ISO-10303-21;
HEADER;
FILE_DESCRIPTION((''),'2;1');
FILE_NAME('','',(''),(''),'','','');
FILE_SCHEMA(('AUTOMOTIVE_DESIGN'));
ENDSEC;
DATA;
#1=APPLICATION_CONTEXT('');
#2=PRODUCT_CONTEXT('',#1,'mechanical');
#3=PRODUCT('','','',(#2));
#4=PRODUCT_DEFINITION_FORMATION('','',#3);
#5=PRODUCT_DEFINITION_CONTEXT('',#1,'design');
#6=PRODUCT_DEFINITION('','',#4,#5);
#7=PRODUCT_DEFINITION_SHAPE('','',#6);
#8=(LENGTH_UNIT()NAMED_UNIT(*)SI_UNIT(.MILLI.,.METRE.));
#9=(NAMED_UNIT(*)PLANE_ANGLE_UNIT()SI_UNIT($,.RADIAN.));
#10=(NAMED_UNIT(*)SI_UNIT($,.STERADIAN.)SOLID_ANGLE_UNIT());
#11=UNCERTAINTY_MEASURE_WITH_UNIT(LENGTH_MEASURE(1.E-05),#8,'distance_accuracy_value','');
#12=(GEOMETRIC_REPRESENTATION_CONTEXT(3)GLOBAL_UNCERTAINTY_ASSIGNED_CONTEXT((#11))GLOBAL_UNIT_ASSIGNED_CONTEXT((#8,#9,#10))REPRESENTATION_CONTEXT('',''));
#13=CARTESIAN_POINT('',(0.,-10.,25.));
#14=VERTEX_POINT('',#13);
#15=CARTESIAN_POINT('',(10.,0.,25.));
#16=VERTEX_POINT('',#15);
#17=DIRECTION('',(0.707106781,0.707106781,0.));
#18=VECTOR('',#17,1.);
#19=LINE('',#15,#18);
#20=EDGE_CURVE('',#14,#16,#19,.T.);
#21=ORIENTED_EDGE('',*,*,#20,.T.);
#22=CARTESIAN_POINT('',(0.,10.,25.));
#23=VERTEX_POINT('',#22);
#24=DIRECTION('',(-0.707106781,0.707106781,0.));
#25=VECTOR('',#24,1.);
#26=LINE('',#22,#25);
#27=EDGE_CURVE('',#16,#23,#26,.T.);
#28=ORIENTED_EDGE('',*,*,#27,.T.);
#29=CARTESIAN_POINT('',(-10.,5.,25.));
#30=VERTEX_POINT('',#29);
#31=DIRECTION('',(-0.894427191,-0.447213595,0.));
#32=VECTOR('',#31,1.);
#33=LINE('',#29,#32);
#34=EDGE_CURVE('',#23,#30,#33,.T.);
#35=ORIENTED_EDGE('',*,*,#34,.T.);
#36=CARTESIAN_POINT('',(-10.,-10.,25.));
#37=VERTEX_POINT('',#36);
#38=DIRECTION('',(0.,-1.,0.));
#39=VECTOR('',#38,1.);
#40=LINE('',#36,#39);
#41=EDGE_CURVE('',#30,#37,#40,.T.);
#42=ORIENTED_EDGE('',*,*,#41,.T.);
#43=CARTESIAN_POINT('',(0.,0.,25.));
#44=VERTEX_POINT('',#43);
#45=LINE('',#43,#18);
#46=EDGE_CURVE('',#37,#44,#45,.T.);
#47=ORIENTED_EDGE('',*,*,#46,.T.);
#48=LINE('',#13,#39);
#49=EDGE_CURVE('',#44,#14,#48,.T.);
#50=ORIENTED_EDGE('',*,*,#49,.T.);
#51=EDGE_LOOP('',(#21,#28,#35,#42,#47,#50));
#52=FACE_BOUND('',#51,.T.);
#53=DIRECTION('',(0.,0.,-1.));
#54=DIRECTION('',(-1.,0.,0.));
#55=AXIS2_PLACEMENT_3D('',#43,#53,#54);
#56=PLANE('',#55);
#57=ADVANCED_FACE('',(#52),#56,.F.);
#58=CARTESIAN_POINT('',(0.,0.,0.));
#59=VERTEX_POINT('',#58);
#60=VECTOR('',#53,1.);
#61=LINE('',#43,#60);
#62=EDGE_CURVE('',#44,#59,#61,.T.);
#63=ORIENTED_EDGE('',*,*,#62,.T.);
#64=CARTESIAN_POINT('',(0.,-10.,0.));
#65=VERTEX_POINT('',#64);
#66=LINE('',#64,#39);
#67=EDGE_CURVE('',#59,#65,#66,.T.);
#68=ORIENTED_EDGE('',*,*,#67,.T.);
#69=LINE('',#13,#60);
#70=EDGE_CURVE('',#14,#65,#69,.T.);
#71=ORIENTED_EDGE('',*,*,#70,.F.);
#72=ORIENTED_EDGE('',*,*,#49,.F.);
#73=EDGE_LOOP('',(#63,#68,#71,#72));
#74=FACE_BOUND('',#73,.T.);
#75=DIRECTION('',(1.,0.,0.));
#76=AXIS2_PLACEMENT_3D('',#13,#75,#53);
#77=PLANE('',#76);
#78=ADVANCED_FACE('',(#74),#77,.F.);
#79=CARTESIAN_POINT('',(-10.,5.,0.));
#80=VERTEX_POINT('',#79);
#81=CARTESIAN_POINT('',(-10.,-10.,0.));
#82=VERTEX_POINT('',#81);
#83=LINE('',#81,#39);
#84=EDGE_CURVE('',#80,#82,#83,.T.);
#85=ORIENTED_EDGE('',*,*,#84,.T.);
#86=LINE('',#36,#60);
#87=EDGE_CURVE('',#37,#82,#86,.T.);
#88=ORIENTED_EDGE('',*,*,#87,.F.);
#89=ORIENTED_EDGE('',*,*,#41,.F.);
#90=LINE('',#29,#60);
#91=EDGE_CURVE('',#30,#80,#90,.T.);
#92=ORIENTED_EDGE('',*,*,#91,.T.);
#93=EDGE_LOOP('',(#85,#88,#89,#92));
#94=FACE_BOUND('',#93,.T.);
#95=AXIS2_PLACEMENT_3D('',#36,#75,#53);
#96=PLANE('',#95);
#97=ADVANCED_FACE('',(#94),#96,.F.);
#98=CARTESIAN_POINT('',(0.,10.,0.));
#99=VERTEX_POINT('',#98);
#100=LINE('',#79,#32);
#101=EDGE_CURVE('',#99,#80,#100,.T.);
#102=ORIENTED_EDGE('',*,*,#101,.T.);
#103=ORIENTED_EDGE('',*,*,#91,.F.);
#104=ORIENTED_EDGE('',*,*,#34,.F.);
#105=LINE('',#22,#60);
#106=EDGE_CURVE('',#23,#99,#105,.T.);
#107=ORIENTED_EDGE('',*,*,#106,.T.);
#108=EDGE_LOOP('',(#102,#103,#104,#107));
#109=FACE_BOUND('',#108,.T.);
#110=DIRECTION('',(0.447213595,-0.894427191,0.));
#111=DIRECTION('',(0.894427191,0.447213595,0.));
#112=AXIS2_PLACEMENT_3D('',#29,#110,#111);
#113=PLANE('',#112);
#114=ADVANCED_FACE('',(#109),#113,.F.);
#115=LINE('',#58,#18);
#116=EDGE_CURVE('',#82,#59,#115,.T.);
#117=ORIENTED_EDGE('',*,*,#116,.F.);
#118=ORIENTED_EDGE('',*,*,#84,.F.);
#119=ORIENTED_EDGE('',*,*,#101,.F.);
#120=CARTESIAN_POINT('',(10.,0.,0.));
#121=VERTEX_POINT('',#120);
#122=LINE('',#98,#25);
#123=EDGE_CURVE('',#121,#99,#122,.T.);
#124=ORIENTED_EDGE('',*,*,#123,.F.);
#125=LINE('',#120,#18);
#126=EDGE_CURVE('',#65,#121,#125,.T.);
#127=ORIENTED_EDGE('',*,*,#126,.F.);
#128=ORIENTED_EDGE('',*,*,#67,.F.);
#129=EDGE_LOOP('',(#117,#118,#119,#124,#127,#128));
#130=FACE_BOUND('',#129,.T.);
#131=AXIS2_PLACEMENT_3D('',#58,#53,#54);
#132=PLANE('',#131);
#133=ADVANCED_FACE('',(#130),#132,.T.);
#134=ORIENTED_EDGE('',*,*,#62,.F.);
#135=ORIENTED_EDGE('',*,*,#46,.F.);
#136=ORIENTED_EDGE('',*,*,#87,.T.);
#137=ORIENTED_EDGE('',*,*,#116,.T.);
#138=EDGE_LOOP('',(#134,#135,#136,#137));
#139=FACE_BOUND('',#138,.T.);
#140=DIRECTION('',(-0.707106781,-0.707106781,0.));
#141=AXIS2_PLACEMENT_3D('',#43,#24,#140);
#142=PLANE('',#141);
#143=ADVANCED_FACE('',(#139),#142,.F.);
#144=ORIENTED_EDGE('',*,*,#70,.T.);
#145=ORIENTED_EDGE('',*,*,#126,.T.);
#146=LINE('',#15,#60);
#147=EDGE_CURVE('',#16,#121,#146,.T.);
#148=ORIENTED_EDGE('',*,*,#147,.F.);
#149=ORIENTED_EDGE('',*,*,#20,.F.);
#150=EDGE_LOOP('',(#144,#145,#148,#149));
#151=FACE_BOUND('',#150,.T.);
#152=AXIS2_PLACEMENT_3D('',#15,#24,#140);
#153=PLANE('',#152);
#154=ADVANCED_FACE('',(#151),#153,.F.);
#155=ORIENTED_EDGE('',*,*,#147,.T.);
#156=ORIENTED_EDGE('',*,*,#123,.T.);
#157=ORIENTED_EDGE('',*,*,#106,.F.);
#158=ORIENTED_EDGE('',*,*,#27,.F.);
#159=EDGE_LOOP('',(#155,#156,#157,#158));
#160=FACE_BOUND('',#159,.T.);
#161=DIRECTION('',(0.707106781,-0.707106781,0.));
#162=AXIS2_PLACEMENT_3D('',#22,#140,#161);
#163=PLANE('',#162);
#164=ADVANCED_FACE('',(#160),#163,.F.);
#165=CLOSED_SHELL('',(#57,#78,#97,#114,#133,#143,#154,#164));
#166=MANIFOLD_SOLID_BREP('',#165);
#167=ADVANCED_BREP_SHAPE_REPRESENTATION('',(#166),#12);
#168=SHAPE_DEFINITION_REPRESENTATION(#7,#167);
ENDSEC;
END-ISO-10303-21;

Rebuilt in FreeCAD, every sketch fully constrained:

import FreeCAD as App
import Part
import Sketcher

doc = App.newDocument("Part")
body = doc.addObject("PartDesign::Body", "Body")

# Sketch on XY plane
sketch1 = body.newObject("Sketcher::SketchObject", "Sketch")
sketch1.AttachmentSupport = (doc.getObject("XY_Plane"), [""])
sketch1.MapMode = "FlatFace"
sketch1.addGeometry([
    Part.LineSegment(App.Vector(0, 10, 0), App.Vector(-10, 5, 0)),  # 0
    Part.LineSegment(App.Vector(-10, 5, 0), App.Vector(-10, -10, 0)),  # 1
    Part.LineSegment(App.Vector(-10, -10, 0), App.Vector(0, 0, 0)),  # 2
    Part.LineSegment(App.Vector(0, 0, 0), App.Vector(0, -10, 0)),  # 3
    Part.LineSegment(App.Vector(0, -10, 0), App.Vector(10, 0, 0)),  # 4
    Part.LineSegment(App.Vector(10, 0, 0), App.Vector(0, 10, 0)),  # 5
], False)
sketch1.addConstraint([
    Sketcher.Constraint("Coincident", 0, 2, 1, 1),
    Sketcher.Constraint("Coincident", 1, 2, 2, 1),
    Sketcher.Constraint("Coincident", 2, 2, 3, 1),
    Sketcher.Constraint("Coincident", 3, 2, 4, 1),
    Sketcher.Constraint("Coincident", 4, 2, 5, 1),
    Sketcher.Constraint("Coincident", 5, 2, 0, 1),
    Sketcher.Constraint("Vertical", 1),
    Sketcher.Constraint("Vertical", 3),
    Sketcher.Constraint("Coincident", 2, 2, -1, 1),
    Sketcher.Constraint("Symmetric", 3, 2, 5, 2, -1, 1),
    Sketcher.Constraint("PointOnObject", 4, 2, -1),
    Sketcher.Constraint("Parallel", 2, 4),
    Sketcher.Constraint("Perpendicular", 4, 5),
    Sketcher.Constraint("Horizontal", 1, 2, 3, 2),
    Sketcher.Constraint("DistanceY", 1, 2, 1, 1, 15.0),
    Sketcher.Constraint("DistanceY", 3, 2, 3, 1, 10.0),
])
pad1 = body.newObject("PartDesign::Pad", "Pad")
pad1.Profile = sketch1
pad1.Length = 25

doc.recompute()
